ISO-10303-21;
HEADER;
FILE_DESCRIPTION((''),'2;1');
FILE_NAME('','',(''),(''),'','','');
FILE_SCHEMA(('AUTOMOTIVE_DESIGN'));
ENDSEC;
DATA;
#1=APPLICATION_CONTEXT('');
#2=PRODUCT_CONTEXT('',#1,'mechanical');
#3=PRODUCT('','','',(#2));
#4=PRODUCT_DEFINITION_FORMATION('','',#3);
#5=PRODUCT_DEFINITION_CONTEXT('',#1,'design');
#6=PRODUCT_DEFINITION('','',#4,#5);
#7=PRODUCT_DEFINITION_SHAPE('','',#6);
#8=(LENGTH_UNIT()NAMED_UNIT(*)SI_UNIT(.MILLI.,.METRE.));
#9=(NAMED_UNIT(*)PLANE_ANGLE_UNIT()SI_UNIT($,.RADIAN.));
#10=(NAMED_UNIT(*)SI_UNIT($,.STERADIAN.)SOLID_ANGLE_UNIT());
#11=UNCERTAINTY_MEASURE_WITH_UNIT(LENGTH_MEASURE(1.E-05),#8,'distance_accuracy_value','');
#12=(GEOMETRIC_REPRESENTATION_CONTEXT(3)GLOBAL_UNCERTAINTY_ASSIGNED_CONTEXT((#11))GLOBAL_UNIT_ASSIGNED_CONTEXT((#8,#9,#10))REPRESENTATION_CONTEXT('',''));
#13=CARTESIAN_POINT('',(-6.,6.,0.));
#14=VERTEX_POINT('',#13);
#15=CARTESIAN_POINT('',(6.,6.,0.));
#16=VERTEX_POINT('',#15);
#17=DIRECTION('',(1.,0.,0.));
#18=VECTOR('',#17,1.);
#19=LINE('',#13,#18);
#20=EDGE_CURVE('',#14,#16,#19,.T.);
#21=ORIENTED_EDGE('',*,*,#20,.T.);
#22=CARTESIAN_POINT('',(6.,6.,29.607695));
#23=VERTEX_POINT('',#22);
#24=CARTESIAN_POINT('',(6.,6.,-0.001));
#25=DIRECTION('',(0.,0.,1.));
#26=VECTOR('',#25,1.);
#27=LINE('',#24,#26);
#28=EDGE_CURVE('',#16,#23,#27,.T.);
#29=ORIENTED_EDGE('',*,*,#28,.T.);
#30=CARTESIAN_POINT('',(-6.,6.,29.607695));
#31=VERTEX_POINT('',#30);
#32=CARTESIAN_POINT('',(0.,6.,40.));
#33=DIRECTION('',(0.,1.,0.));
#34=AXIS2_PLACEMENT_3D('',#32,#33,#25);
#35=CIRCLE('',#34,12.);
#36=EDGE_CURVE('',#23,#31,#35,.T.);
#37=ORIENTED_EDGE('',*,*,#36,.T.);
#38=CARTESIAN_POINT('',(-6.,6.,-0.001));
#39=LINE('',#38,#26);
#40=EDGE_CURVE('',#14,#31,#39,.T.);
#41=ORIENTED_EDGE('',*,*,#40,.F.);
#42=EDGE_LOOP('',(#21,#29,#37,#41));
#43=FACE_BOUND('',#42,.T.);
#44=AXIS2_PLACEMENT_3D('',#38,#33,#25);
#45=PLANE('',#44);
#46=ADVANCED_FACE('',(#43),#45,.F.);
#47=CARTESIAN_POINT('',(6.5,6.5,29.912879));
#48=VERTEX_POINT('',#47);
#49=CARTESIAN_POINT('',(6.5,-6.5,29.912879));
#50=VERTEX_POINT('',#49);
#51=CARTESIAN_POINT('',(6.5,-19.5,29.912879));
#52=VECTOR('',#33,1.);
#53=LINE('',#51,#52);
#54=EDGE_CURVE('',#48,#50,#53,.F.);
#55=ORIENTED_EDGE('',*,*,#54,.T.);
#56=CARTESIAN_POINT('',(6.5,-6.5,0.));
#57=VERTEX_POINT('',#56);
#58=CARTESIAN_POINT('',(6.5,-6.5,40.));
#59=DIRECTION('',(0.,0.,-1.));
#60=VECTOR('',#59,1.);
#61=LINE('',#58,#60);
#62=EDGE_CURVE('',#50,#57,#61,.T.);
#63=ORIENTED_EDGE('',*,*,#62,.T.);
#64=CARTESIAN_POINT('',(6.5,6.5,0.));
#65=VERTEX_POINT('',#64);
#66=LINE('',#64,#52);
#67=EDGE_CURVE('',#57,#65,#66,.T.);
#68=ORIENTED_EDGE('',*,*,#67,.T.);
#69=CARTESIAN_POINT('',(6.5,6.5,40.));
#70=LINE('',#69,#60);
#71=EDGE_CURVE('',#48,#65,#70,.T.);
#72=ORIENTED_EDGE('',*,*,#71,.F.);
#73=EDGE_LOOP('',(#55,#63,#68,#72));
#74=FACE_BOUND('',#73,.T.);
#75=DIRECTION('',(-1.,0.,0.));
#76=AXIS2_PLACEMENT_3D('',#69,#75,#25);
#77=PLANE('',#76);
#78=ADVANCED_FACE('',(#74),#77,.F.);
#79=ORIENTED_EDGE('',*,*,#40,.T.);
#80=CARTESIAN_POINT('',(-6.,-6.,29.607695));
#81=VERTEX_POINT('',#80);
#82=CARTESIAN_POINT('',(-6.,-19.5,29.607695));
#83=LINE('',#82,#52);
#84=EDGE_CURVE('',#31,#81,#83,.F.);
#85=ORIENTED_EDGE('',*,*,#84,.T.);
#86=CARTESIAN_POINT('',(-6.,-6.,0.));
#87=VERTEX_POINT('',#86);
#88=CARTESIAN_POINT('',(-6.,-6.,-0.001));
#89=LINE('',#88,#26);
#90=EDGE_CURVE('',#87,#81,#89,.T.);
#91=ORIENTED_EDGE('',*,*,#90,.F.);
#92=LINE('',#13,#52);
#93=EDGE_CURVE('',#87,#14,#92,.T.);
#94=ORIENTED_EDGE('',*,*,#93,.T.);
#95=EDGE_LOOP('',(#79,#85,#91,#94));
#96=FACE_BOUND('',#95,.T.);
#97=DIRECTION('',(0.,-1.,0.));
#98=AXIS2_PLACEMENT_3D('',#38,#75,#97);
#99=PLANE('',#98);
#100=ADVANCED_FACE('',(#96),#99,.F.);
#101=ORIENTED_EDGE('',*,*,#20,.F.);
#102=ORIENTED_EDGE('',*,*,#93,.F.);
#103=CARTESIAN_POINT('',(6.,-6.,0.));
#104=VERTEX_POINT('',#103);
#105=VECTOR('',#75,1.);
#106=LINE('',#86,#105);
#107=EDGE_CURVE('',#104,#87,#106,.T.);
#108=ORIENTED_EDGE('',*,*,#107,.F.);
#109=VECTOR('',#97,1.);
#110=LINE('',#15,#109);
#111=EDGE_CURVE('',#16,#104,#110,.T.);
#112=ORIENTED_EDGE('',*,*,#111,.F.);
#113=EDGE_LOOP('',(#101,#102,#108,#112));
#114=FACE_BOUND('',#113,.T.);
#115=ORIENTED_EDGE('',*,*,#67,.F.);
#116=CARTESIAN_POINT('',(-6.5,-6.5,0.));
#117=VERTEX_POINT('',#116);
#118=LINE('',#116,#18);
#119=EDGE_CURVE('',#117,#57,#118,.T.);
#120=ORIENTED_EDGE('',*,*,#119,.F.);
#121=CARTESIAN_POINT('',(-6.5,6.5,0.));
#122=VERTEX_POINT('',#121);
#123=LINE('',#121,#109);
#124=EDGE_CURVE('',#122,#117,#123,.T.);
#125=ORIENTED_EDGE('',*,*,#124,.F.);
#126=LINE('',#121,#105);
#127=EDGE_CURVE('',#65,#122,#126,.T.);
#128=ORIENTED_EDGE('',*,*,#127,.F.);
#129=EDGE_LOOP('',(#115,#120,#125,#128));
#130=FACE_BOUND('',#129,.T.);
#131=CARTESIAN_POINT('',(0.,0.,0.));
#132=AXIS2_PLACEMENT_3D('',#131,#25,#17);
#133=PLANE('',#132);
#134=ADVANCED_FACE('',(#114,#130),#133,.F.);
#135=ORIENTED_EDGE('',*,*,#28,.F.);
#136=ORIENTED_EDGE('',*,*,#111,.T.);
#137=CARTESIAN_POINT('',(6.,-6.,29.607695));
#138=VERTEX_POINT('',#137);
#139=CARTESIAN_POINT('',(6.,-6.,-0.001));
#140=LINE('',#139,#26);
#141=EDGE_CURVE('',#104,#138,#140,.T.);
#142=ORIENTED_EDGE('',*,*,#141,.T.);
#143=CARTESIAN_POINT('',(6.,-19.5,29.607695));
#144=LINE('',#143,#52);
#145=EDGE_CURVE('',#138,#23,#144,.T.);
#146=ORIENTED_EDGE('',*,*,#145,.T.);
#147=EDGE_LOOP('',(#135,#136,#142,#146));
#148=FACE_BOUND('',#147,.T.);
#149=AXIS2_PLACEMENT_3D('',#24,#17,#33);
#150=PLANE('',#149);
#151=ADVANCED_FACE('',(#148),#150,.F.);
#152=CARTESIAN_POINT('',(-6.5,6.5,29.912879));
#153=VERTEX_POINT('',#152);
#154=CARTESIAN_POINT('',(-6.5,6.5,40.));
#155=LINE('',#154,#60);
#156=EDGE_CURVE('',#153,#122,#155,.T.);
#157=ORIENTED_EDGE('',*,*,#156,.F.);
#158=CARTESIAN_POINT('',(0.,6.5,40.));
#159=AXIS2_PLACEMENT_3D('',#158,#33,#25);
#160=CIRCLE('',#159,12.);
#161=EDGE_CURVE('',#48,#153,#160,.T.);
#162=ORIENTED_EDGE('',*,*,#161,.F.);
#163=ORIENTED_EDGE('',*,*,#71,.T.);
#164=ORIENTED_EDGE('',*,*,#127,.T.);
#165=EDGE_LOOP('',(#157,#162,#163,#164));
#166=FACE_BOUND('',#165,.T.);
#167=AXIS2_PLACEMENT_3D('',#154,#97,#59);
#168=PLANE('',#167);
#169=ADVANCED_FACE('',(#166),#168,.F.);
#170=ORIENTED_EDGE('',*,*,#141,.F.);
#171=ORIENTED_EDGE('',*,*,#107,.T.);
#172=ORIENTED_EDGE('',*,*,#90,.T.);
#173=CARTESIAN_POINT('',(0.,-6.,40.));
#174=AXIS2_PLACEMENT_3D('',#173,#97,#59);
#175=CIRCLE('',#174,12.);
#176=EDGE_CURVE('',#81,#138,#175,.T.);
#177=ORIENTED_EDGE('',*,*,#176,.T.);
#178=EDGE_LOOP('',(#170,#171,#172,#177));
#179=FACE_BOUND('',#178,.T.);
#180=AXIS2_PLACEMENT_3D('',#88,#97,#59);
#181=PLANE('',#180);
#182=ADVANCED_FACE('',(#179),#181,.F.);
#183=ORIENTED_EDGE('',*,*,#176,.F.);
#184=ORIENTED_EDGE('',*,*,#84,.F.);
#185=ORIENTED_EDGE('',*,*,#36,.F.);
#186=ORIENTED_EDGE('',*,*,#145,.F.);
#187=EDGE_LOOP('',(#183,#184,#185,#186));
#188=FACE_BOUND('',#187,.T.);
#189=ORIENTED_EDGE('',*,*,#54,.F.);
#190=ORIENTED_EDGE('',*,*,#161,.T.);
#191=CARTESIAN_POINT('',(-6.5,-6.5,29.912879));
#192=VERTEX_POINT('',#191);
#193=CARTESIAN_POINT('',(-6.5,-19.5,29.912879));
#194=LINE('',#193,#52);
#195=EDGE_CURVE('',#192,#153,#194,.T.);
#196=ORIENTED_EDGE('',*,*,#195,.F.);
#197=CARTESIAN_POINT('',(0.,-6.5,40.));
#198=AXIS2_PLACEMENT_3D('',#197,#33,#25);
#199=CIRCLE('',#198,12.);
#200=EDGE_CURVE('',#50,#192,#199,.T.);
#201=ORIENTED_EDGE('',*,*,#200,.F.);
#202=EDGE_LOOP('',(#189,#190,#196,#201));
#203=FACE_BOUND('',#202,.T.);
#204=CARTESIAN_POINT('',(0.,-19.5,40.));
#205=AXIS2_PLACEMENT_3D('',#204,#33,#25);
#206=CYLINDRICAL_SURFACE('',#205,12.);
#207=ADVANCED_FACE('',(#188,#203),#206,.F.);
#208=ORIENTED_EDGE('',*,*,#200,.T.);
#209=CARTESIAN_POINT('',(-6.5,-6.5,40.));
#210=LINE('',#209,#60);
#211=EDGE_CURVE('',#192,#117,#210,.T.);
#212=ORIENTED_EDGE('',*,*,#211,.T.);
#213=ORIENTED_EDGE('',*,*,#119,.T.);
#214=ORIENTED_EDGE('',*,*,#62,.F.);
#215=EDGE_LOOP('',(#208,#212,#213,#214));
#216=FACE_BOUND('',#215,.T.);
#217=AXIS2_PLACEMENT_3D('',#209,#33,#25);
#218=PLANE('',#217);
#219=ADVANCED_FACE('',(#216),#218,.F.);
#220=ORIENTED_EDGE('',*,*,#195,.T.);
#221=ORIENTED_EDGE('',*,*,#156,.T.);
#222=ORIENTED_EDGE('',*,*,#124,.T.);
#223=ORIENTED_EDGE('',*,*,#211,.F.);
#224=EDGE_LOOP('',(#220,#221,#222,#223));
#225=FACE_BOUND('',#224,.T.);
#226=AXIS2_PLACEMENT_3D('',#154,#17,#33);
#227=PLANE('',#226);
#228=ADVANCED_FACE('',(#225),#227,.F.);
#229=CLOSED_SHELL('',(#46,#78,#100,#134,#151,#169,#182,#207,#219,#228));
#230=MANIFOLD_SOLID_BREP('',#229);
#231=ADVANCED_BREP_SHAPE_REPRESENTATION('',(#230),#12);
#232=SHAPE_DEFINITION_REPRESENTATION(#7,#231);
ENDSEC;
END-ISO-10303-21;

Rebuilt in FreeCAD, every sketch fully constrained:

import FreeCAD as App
import Part
import Sketcher

V = App.Vector

doc = App.newDocument("Part")
params = doc.addObject("Spreadsheet::Sheet", "Params")
for row, (alias, value) in enumerate([
    ("sketch1_width", "13 mm"),
    ("pad1_length", "40 mm"),
    ("sketch2_width", "12 mm"),
    ("sketch3_diameter", "24 mm"),
    ("pocket2_length", "26 mm"),
], start=1):
    params.set(f"A{row}", alias)
    params.set(f"B{row}", "=" + value)
    params.setAlias(f"B{row}", alias)

body = doc.addObject("PartDesign::Body", "Body")

# Sketch on XY plane
sketch1 = body.newObject("Sketcher::SketchObject", "Sketch")
sketch1.AttachmentSupport = (doc.getObject("XY_Plane"), [""])
sketch1.MapMode = "FlatFace"
sketch1.addGeometry([
    Part.LineSegment(V(-6, 6, 0), V(-6, -6, 0)),
    Part.LineSegment(V(-6, -6, 0), V(6, -6, 0)),
    Part.LineSegment(V(6, -6, 0), V(6, 6, 0)),
    Part.LineSegment(V(6, 6, 0), V(-6, 6, 0)),
], False)
sketch1.addConstraint([
    Sketcher.Constraint("Coincident", 0, 2, 1, 1),
    Sketcher.Constraint("Coincident", 1, 2, 2, 1),
    Sketcher.Constraint("Coincident", 2, 2, 3, 1),
    Sketcher.Constraint("Coincident", 3, 2, 0, 1),
    Sketcher.Constraint("Vertical", 0),
    Sketcher.Constraint("Horizontal", 1),
    Sketcher.Constraint("Vertical", 2),
    Sketcher.Constraint("Horizontal", 3),
    Sketcher.Constraint("Symmetric", 0, 2, 2, 2, -1, 1),
    Sketcher.Constraint("Equal", 3, 0),
    Sketcher.Constraint("DistanceX", 1, 1, 1, 2, 13.0),
])
sketch1.setExpression("Constraints[10]", "Params.sketch1_width")
pad1 = body.newObject("PartDesign::Pad", "Pad")
pad1.Profile = sketch1
pad1.setExpression("Length", "Params.pad1_length")

# Sketch on XY plane
sketch2 = body.newObject("Sketcher::SketchObject", "Sketch001")
sketch2.AttachmentSupport = (doc.getObject("XY_Plane"), [""])
sketch2.MapMode = "FlatFace"
sketch2.AttachmentOffset = App.Placement(V(0, 0, 40), App.Rotation())
sketch2.addGeometry([
    Part.LineSegment(V(-6, 6, 0), V(-6, -6, 0)),
    Part.LineSegment(V(-6, -6, 0), V(6, -6, 0)),
    Part.LineSegment(V(6, -6, 0), V(6, 6, 0)),
    Part.LineSegment(V(6, 6, 0), V(-6, 6, 0)),
], False)
sketch2.addConstraint([
    Sketcher.Constraint("Coincident", 0, 2, 1, 1),
    Sketcher.Constraint("Coincident", 1, 2, 2, 1),
    Sketcher.Constraint("Coincident", 2, 2, 3, 1),
    Sketcher.Constraint("Coincident", 3, 2, 0, 1),
    Sketcher.Constraint("Vertical", 0),
    Sketcher.Constraint("Horizontal", 1),
    Sketcher.Constraint("Vertical", 2),
    Sketcher.Constraint("Horizontal", 3),
    Sketcher.Constraint("Symmetric", 0, 2, 2, 2, -1, 1),
    Sketcher.Constraint("Equal", 3, 0),
    Sketcher.Constraint("DistanceX", 1, 1, 1, 2, 12.0),
])
sketch2.setExpression("Constraints[10]", "Params.sketch2_width")
pocket1 = body.newObject("PartDesign::Pocket", "Pocket")
pocket1.Profile = sketch2
pocket1.Type = "UpToFirst"

# Sketch on XZ plane
sketch3 = body.newObject("Sketcher::SketchObject", "Sketch002")
sketch3.AttachmentSupport = (doc.getObject("XZ_Plane"), [""])
sketch3.MapMode = "FlatFace"
sketch3.AttachmentOffset = App.Placement(V(0, 0, -6.5), App.Rotation())
sketch3.addGeometry(Part.Circle(V(0, 40, 0), V(0, 0, 1), 12), False)
sketch3.addConstraint([
    Sketcher.Constraint("PointOnObject", 0, 3, -2),
    Sketcher.Constraint("Diameter", 0, 24.0),
    Sketcher.Constraint("DistanceY", -1, 1, 0, 3, 40.0),
])
sketch3.setExpression("Constraints[1]", "Params.sketch3_diameter")
pocket2 = body.newObject("PartDesign::Pocket", "Pocket001")
pocket2.Profile = sketch3
pocket2.setExpression("Length", "Params.pocket2_length")
pocket2.Reversed = True

doc.recompute()
